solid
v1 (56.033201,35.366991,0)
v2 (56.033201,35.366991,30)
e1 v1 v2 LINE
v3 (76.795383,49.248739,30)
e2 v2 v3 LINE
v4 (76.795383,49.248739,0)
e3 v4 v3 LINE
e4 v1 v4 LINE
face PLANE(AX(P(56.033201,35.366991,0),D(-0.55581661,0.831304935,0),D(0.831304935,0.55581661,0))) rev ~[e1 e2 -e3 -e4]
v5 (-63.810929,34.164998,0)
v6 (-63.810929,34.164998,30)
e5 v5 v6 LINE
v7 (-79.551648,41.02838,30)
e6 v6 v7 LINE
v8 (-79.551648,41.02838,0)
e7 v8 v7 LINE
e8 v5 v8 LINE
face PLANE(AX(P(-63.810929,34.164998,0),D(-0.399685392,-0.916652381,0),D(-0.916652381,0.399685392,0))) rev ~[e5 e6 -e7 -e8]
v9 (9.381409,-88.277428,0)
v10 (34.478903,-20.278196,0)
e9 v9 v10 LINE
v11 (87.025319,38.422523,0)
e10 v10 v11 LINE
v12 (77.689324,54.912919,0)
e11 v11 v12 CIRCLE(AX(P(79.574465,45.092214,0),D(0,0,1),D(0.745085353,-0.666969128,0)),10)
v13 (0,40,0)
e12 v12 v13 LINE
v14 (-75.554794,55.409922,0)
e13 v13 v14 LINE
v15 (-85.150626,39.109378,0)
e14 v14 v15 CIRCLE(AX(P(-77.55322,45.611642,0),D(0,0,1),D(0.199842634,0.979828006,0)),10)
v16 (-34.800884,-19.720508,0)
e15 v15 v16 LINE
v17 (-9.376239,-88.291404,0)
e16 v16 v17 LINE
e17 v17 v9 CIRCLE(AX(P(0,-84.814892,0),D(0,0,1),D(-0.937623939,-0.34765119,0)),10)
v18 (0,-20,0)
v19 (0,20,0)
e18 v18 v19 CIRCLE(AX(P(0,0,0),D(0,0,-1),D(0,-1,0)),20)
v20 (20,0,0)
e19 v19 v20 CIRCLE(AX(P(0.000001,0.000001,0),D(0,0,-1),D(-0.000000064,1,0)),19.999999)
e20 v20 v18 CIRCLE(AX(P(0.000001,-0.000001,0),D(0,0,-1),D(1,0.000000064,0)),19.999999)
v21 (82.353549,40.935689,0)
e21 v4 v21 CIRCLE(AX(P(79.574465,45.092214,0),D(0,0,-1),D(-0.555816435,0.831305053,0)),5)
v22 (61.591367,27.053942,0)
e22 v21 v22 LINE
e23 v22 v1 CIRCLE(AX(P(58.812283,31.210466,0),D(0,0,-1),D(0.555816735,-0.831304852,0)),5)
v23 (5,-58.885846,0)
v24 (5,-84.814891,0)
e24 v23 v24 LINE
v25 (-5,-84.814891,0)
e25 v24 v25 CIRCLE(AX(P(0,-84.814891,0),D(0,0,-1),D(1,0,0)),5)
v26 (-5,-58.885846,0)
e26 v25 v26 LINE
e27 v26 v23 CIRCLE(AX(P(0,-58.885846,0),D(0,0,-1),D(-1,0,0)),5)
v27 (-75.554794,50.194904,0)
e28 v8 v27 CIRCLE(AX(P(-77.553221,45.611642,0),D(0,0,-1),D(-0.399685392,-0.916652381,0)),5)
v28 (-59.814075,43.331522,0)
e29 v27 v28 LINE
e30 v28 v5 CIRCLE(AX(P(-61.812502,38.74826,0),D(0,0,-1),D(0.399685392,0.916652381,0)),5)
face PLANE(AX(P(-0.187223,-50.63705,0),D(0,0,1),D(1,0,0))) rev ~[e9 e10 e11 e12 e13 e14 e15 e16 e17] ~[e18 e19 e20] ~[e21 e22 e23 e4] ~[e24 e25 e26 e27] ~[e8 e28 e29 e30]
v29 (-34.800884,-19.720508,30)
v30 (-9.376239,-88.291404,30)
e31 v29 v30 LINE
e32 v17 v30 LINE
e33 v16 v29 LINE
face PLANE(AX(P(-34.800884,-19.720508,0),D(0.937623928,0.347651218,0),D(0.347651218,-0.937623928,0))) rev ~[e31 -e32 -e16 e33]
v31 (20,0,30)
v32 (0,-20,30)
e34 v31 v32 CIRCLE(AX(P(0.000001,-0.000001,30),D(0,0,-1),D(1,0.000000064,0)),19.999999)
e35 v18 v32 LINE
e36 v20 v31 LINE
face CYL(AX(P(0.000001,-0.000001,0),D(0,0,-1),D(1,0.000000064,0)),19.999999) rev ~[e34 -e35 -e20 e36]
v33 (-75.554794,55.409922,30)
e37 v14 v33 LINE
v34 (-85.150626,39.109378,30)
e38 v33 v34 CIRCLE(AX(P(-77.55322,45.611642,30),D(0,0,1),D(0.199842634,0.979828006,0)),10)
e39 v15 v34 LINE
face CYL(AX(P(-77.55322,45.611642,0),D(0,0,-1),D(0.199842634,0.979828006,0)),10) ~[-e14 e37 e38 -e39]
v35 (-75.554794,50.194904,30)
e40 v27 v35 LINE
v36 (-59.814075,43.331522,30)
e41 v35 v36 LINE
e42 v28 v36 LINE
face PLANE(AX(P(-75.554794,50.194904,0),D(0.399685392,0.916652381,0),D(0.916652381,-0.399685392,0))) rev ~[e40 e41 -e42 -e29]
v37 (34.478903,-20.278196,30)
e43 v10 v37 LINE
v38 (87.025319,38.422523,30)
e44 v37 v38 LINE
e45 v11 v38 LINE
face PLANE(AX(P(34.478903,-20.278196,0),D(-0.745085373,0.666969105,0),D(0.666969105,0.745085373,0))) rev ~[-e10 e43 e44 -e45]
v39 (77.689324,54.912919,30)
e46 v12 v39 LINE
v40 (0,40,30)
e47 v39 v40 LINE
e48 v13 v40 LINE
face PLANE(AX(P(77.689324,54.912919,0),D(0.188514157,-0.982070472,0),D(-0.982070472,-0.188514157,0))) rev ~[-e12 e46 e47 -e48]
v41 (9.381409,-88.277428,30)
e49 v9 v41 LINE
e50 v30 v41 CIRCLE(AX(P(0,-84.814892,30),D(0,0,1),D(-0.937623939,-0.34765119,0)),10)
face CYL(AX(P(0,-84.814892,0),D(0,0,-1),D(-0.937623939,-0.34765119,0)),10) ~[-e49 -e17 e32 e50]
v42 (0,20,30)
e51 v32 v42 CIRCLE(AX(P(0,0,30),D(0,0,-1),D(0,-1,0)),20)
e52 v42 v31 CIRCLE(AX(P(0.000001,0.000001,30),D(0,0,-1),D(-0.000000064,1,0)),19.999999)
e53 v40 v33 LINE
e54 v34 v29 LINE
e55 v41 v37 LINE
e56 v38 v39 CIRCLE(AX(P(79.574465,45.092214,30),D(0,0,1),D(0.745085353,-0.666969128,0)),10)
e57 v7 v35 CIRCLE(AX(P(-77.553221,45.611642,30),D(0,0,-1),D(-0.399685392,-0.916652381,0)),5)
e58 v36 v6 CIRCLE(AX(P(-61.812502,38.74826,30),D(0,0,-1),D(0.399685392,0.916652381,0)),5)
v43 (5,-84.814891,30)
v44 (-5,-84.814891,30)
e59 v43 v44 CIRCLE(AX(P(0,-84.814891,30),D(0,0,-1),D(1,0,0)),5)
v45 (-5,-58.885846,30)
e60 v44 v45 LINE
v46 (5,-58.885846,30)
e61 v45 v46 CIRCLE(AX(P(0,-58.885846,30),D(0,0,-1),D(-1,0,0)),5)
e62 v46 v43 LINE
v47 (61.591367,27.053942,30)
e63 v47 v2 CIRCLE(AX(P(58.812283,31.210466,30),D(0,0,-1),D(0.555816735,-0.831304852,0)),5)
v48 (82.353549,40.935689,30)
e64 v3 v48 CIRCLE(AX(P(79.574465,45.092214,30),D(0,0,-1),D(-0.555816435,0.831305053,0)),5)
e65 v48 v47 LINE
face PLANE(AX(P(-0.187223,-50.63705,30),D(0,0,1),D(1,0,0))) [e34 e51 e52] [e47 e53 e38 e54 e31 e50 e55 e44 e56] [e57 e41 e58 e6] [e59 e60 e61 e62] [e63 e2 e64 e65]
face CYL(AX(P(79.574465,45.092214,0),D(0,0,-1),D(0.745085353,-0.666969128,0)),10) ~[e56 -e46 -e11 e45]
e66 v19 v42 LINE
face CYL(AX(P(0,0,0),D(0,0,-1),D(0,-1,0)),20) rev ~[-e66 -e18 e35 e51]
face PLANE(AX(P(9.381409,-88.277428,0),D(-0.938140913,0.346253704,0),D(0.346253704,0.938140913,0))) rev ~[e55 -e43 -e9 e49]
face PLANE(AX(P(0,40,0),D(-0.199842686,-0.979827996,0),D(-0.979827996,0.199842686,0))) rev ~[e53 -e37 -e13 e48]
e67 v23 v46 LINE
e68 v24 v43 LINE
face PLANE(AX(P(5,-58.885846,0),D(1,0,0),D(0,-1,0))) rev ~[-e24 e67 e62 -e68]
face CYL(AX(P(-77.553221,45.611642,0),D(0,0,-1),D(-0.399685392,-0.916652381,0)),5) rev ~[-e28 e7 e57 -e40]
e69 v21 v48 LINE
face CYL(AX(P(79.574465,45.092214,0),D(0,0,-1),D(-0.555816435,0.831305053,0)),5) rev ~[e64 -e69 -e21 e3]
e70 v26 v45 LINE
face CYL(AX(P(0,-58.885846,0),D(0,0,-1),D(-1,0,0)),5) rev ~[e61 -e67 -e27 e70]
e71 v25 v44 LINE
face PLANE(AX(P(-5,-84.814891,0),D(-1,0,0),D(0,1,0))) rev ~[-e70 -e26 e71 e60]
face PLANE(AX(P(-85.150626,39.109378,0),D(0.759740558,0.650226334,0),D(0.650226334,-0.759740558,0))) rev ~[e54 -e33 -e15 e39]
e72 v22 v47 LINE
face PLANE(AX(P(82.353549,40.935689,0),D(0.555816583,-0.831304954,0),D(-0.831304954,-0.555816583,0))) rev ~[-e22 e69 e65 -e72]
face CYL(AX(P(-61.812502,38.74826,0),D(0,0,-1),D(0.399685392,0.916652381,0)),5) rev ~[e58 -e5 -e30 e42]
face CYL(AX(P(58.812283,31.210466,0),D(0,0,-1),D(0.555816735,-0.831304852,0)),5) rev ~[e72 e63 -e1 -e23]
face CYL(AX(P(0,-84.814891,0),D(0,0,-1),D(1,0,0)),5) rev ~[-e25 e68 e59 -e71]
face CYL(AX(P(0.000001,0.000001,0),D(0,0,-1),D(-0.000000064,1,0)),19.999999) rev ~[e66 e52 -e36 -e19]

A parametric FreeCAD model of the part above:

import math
import FreeCAD as App
import Part
import Sketcher

doc = App.newDocument("Part")
body = doc.addObject("PartDesign::Body", "Body")

# Sketch on XY plane
sketch1 = body.newObject("Sketcher::SketchObject", "Sketch")
sketch1.AttachmentSupport = (doc.getObject("XY_Plane"), [""])
sketch1.MapMode = "FlatFace"
sketch1.addGeometry(Part.LineSegment(App.Vector(9.381409, -88.277428, 0), App.Vector(34.478903, -20.278196, 0)), False)
sketch1.addGeometry(Part.LineSegment(App.Vector(34.478903, -20.278196, 0), App.Vector(87.025319, 38.422523, 0)), False)
sketch1.addGeometry(Part.ArcOfCircle(Part.Circle(App.Vector(79.574465, 45.092214, 0), App.Vector(0, 0, 1), 10), math.radians(-41.833569), math.radians(100.866084)), False)
sketch1.addGeometry(Part.LineSegment(App.Vector(77.689324, 54.912919, 0), App.Vector(0, 40, 0)), False)
sketch1.addGeometry(Part.LineSegment(App.Vector(0, 40, 0), App.Vector(-75.554794, 55.409922, 0)), False)
sketch1.addGeometry(Part.ArcOfCircle(Part.Circle(App.Vector(-77.55322, 45.611642, 0), App.Vector(0, 0, 1), 10), math.radians(78.472243), math.radians(220.55867)), False)
sketch1.addGeometry(Part.LineSegment(App.Vector(-85.150626, 39.109378, 0), App.Vector(-34.800884, -19.720508, 0)), False)
sketch1.addGeometry(Part.LineSegment(App.Vector(-34.800884, -19.720508, 0), App.Vector(-9.376239, -88.291404, 0)), False)
sketch1.addGeometry(Part.ArcOfCircle(Part.Circle(App.Vector(0, -84.814892, 0), App.Vector(0, 0, 1), 10), math.radians(-159.656281), math.radians(-20.258338)), False)
sketch1.addGeometry(Part.LineSegment(App.Vector(5, -58.885846, 0), App.Vector(5, -84.814891, 0)), False)
sketch1.addGeometry(Part.ArcOfCircle(Part.Circle(App.Vector(0, -84.814891, 0), App.Vector(0, 0, 1), 5), math.radians(180), math.radians(360)), False)
sketch1.addGeometry(Part.LineSegment(App.Vector(-5, -84.814891, 0), App.Vector(-5, -58.885846, 0)), False)
sketch1.addGeometry(Part.ArcOfCircle(Part.Circle(App.Vector(0, -58.885846, 0), App.Vector(0, 0, 1), 5), math.radians(0), math.radians(180)), False)
sketch1.addGeometry(Part.ArcOfCircle(Part.Circle(App.Vector(0.000001, 0.000001, 0), App.Vector(0, 0, 1), 19.999999), math.radians(-0.000004), math.radians(90.000004)), False)
sketch1.addGeometry(Part.ArcOfCircle(Part.Circle(App.Vector(0.000001, -0.000001, 0), App.Vector(0, 0, 1), 19.999999), math.radians(-90.000004), math.radians(0.000004)), False)
sketch1.addGeometry(Part.ArcOfCircle(Part.Circle(App.Vector(0, 0, 0), App.Vector(0, 0, 1), 20), math.radians(90), math.radians(270)), False)
sketch1.addGeometry(Part.LineSegment(App.Vector(-63.810929, 34.164998, 0), App.Vector(-79.551648, 41.02838, 0)), False)
sketch1.addGeometry(Part.ArcOfCircle(Part.Circle(App.Vector(-77.553221, 45.611642, 0), App.Vector(0, 0, 1), 5), math.radians(66.441488), math.radians(246.441488)), False)
sketch1.addGeometry(Part.LineSegment(App.Vector(-75.554794, 50.194904, 0), App.Vector(-59.814075, 43.331522, 0)), False)
sketch1.addGeometry(Part.ArcOfCircle(Part.Circle(App.Vector(-61.812502, 38.74826, 0), App.Vector(0, 0, 1), 5), math.radians(-113.558512), math.radians(66.441488)), False)
sketch1.addGeometry(Part.LineSegment(App.Vector(56.033201, 35.366991, 0), App.Vector(76.795383, 49.248739, 0)), False)
sketch1.addGeometry(Part.ArcOfCircle(Part.Circle(App.Vector(79.574465, 45.092214, 0), App.Vector(0, 0, 1), 5), math.radians(-56.233014), math.radians(123.766967)), False)
sketch1.addGeometry(Part.LineSegment(App.Vector(82.353549, 40.935689, 0), App.Vector(61.591367, 27.053942, 0)), False)
sketch1.addGeometry(Part.ArcOfCircle(Part.Circle(App.Vector(58.812283, 31.210466, 0), App.Vector(0, 0, 1), 5), math.radians(123.766972), math.radians(303.766988)), False)
sketch1.addConstraint(Sketcher.Constraint("Coincident", 0, 2, 1, 1))
sketch1.addConstraint(Sketcher.Constraint("Coincident", 1, 2, 2, 1))
sketch1.addConstraint(Sketcher.Constraint("Coincident", 2, 2, 3, 1))
sketch1.addConstraint(Sketcher.Constraint("Coincident", 3, 2, 4, 1))
sketch1.addConstraint(Sketcher.Constraint("Coincident", 4, 2, 5, 1))
sketch1.addConstraint(Sketcher.Constraint("Coincident", 5, 2, 6, 1))
sketch1.addConstraint(Sketcher.Constraint("Coincident", 6, 2, 7, 1))
sketch1.addConstraint(Sketcher.Constraint("Coincident", 7, 2, 8, 1))
sketch1.addConstraint(Sketcher.Constraint("Coincident", 8, 2, 0, 1))
sketch1.addConstraint(Sketcher.Constraint("Coincident", 9, 2, 10, 2))
sketch1.addConstraint(Sketcher.Constraint("Coincident", 10, 1, 11, 1))
sketch1.addConstraint(Sketcher.Constraint("Coincident", 11, 2, 12, 2))
sketch1.addConstraint(Sketcher.Constraint("Coincident", 12, 1, 9, 1))
sketch1.addConstraint(Sketcher.Constraint("Coincident", 13, 1, 14, 2))
sketch1.addConstraint(Sketcher.Constraint("Coincident", 14, 1, 15, 2))
sketch1.addConstraint(Sketcher.Constraint("Coincident", 15, 1, 13, 2))
sketch1.addConstraint(Sketcher.Constraint("Coincident", 16, 2, 17, 2))
sketch1.addConstraint(Sketcher.Constraint("Coincident", 17, 1, 18, 1))
sketch1.addConstraint(Sketcher.Constraint("Coincident", 18, 2, 19, 2))
sketch1.addConstraint(Sketcher.Constraint("Coincident", 19, 1, 16, 1))
sketch1.addConstraint(Sketcher.Constraint("Coincident", 20, 2, 21, 2))
sketch1.addConstraint(Sketcher.Constraint("Coincident", 21, 1, 22, 1))
sketch1.addConstraint(Sketcher.Constraint("Coincident", 22, 2, 23, 2))
sketch1.addConstraint(Sketcher.Constraint("Coincident", 23, 1, 20, 1))
sketch1.addConstraint(Sketcher.Constraint("Vertical", 9))
sketch1.addConstraint(Sketcher.Constraint("Vertical", 11))
sketch1.addConstraint(Sketcher.Constraint("Coincident", 13, 3, -1, 1))
sketch1.addConstraint(Sketcher.Constraint("Coincident", 14, 3, -1, 1))
sketch1.addConstraint(Sketcher.Constraint("Coincident", 10, 3, 8, 3))
sketch1.addConstraint(Sketcher.Constraint("Coincident", 17, 3, 5, 3))
sketch1.addConstraint(Sketcher.Constraint("Coincident", 21, 3, 2, 3))
sketch1.addConstraint(Sketcher.Constraint("PointOnObject", 8, 3, -2))
sketch1.addConstraint(Sketcher.Constraint("PointOnObject", 3, 2, -2))
sketch1.addConstraint(Sketcher.Constraint("PointOnObject", 13, 1, -1))
sketch1.addConstraint(Sketcher.Constraint("PointOnObject", 14, 1, -2))
sketch1.addConstraint(Sketcher.Constraint("PointOnObject", 15, 1, -2))
sketch1.addConstraint(Sketcher.Constraint("Radius", 2, 10.0))
sketch1.addConstraint(Sketcher.Constraint("Radius", 5, 10.0))
sketch1.addConstraint(Sketcher.Constraint("Radius", 8, 10.0))
sketch1.addConstraint(Sketcher.Constraint("Radius", 10, 5.0))
sketch1.addConstraint(Sketcher.Constraint("Radius", 13, 19.999999))
sketch1.addConstraint(Sketcher.Constraint("Radius", 17, 5.0))
sketch1.addConstraint(Sketcher.Constraint("Radius", 19, 5.0))
sketch1.addConstraint(Sketcher.Constraint("Radius", 21, 5.0))
sketch1.addConstraint(Sketcher.Constraint("Radius", 23, 5.0))
sketch1.addConstraint(Sketcher.Constraint("DistanceY", -1, 1, 3, 2, 40.0))
sketch1.addConstraint(Sketcher.Constraint("DistanceX", 15, 3, 13, 1, 20.0))
sketch1.addConstraint(Sketcher.Constraint("DistanceY", -1, 1, 19, 1, 34.164998))
sketch1.addConstraint(Sketcher.Constraint("DistanceX", -1, 1, 23, 1, 56.033201))
sketch1.addConstraint(Sketcher.Constraint("DistanceX", 14, 3, 0, 2, 34.478902))
sketch1.addConstraint(Sketcher.Constraint("DistanceY", 18, 2, 4, 2, 12.0784))
sketch1.addConstraint(Sketcher.Constraint("DistanceX", 23, 3, 20, 2, 17.9831))
sketch1.addConstraint(Sketcher.Constraint("DistanceX", 22, 2, 21, 3, 17.983098))
sketch1.addConstraint(Sketcher.Constraint("Distance", 0, 72.482962))
sketch1.addConstraint(Sketcher.Constraint("Distance", 6, 77.434179))
sketch1.addConstraint(Sketcher.Constraint("Distance", 7, 73.132622))
sketch1.addConstraint(Sketcher.Constraint("Distance", 16, 17.171961))
sketch1.addConstraint(Sketcher.Constraint("Distance", 18, 17.171961))
sketch1.addConstraint(Sketcher.Constraint("Distance", 20, 24.97541))
sketch1.addConstraint(Sketcher.Constraint("Distance", 22, 24.97541))
sketch1.addConstraint(Sketcher.Constraint("DistanceY", 9, 2, 9, 1, 25.929045))
sketch1.addConstraint(Sketcher.Constraint("DistanceY", 11, 1, 11, 2, 25.929045))
sketch1.addConstraint(Sketcher.Constraint("DistanceX", 5, 3, -1, 1, 77.55322))
sketch1.addConstraint(Sketcher.Constraint("DistanceY", -1, 1, 5, 3, 45.611642))
sketch1.addConstraint(Sketcher.Constraint("DistanceY", 10, 3, -1, 1, 84.814891))
sketch1.addConstraint(Sketcher.Constraint("DistanceY", -1, 1, 19, 3, 38.74826))
sketch1.addConstraint(Sketcher.Constraint("DistanceX", -1, 1, 1, 2, 87.025319))
sketch1.addConstraint(Sketcher.Constraint("DistanceY", -1, 1, 2, 2, 54.912919))
sketch1.addConstraint(Sketcher.Constraint("DistanceX", 7, 2, -1, 1, 9.376239))
sketch1.addConstraint(Sketcher.Constraint("DistanceX", -1, 1, 8, 2, 9.381409))
sketch1.addConstraint(Sketcher.Constraint("DistanceY", 9, 2, -1, 1, 84.814891))
sketch1.addConstraint(Sketcher.Constraint("DistanceY", 10, 1, -1, 1, 84.814891))
sketch1.addConstraint(Sketcher.Constraint("DistanceX", 16, 2, -1, 1, 79.551648))
sketch1.addConstraint(Sketcher.Constraint("DistanceY", -1, 1, 20, 2, 49.248739))
sketch1.addConstraint(Sketcher.Constraint("DistanceX", -1, 1, 21, 1, 82.353549))
sketch1.addConstraint(Sketcher.Constraint("DistanceY", -1, 1, 21, 1, 40.935689))
sketch1.addConstraint(Sketcher.Constraint("DistanceY", 12, 3, 2, 3, 103.97806))
sketch1.addConstraint(Sketcher.Constraint("DistanceY", 17, 3, 4, 2, 9.79828))
sketch1.addConstraint(Sketcher.Constraint("DistanceY", 6, 2, 13, 3, 19.720509))
pad1 = body.newObject("PartDesign::Pad", "Pad")
pad1.Profile = sketch1
pad1.Length = 30

doc.recompute()
